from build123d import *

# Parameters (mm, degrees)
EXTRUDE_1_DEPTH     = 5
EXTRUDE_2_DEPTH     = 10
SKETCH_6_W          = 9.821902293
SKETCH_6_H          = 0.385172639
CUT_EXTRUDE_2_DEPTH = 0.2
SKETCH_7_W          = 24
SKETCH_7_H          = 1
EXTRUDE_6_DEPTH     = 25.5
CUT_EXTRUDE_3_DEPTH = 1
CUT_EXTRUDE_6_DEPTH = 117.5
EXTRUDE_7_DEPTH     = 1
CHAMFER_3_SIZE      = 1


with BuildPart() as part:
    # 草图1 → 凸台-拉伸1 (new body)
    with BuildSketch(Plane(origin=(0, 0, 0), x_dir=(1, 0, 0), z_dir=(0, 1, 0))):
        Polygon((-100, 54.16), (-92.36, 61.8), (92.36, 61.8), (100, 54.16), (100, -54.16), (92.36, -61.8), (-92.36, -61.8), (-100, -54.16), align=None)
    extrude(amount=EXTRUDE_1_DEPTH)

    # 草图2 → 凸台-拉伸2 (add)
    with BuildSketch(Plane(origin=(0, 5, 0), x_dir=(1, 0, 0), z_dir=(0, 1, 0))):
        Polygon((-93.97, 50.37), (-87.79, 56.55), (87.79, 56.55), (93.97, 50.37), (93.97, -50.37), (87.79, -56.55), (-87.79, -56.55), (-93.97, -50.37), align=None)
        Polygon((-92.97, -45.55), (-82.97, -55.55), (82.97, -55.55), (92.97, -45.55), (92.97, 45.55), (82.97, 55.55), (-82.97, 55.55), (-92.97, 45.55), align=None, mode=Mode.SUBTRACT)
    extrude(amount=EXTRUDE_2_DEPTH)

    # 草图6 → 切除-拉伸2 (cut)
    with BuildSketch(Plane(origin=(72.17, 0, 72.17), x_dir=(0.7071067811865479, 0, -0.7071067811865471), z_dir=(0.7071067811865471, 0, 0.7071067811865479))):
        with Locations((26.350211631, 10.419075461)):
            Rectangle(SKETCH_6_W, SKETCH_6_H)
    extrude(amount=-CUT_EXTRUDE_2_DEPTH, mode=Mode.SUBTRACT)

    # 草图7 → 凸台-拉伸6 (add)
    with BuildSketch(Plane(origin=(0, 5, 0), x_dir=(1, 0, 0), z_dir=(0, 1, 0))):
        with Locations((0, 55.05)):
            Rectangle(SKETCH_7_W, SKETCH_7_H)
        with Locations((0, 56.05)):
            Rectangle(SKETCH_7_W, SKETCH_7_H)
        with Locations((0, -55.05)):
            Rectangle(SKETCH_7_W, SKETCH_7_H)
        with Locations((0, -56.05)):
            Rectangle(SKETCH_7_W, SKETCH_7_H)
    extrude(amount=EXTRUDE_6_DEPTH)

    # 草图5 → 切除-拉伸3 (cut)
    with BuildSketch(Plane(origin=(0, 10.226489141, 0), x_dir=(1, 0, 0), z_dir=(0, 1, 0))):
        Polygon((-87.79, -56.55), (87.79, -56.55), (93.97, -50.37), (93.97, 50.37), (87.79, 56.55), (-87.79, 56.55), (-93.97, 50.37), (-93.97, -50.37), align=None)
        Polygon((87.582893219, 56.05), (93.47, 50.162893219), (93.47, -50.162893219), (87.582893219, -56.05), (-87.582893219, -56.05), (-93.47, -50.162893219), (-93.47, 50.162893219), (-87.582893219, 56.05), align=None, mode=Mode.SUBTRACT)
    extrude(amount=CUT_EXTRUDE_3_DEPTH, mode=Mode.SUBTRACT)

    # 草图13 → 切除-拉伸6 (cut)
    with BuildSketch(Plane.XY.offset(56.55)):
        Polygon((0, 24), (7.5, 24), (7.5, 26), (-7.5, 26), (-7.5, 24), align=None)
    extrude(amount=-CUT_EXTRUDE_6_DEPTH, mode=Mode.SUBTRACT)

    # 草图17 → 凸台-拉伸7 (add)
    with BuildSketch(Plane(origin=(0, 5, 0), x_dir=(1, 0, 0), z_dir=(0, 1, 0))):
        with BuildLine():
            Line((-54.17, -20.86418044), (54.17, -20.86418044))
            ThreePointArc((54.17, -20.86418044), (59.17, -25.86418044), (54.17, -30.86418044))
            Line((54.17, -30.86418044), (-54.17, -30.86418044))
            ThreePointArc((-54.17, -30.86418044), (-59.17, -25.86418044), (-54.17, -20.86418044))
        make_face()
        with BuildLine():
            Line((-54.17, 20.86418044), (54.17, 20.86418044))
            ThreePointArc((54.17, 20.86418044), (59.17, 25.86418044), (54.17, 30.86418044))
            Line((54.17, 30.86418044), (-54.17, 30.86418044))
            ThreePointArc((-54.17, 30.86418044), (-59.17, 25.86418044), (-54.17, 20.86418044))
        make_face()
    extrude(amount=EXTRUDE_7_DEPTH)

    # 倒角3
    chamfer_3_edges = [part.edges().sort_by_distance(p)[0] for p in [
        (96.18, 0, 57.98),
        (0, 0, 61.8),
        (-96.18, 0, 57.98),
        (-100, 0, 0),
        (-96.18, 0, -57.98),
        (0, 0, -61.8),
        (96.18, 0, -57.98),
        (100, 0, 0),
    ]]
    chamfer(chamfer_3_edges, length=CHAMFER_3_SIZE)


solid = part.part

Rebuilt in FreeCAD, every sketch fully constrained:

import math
import FreeCAD as App
import Part
import Sketcher


def edges_at(feature, points):
    """Names of the edges that pass closest to the given points."""
    edges = feature.Shape.Edges
    near = lambda p: min(range(len(edges)), key=lambda i: edges[i].distToShape(Part.Vertex(*p))[0])
    return sorted({f"Edge{near(p) + 1}" for p in points})


def add_polygon(sketch, points):
    """Adds a closed chain of lines whose ends are joined by coincident constraints."""
    first, n = sketch.GeometryCount, len(points)
    for a, b in zip(points, points[1:] + points[:1]):
        sketch.addGeometry(Part.LineSegment(App.Vector(*a, 0), App.Vector(*b, 0)), False)
    for i in range(n):
        sketch.addConstraint(Sketcher.Constraint("Coincident", first + i, 2, first + (i + 1) % n, 1))

doc = App.newDocument("Part")
body = doc.addObject("PartDesign::Body", "Body")

# Sketch on XZ plane
sketch1 = body.newObject("Sketcher::SketchObject", "Sketch")
sketch1.AttachmentSupport = (doc.getObject("XZ_Plane"), [""])
sketch1.MapMode = "FlatFace"
add_polygon(sketch1, [(-92.36, -61.8), (-100, -54.16), (-100, 54.16), (-92.36, 61.8), (92.36, 61.8), (100, 54.16), (100, -54.16), (92.36, -61.8)])  # lines 0-7
sketch1.addConstraint([
    Sketcher.Constraint("Vertical", 1),
    Sketcher.Constraint("Horizontal", 3),
    Sketcher.Constraint("Vertical", 5),
    Sketcher.Constraint("Horizontal", 7),
    Sketcher.Constraint("Symmetric", 0, 2, 4, 2, -1, 1),
    Sketcher.Constraint("Symmetric", 2, 2, 6, 2, -1, 1),
    Sketcher.Constraint("Perpendicular", 0, 2),
    Sketcher.Constraint("Perpendicular", 2, 4),
    Sketcher.Constraint("Perpendicular", 4, 6),
    Sketcher.Constraint("Horizontal", 1, 2, 4, 2),
    Sketcher.Constraint("Vertical", 3, 2, 6, 2),
    Sketcher.Constraint("DistanceX", 0, 2, -1, 1, 100.0),
    Sketcher.Constraint("DistanceX", 3, 1, 3, 2, 184.72),
    Sketcher.Constraint("DistanceY", 1, 1, 1, 2, 108.32),
])
pad1 = body.newObject("PartDesign::Pad", "Pad")
pad1.Profile = sketch1
pad1.Length = 5
pad1.Reversed = True

# Sketch on XZ plane
sketch2 = body.newObject("Sketcher::SketchObject", "Sketch001")
sketch2.AttachmentSupport = (doc.getObject("XZ_Plane"), [""])
sketch2.MapMode = "FlatFace"
sketch2.AttachmentOffset = App.Placement(App.Vector(0, 0, -5), App.Rotation())
add_polygon(sketch2, [(-87.79, -56.55), (-93.97, -50.37), (-93.97, 50.37), (-87.79, 56.55), (87.79, 56.55), (93.97, 50.37), (93.97, -50.37), (87.79, -56.55)])  # lines 0-7
add_polygon(sketch2, [(-92.97, 45.55), (-92.97, -45.55), (-82.97, -55.55), (82.97, -55.55), (92.97, -45.55), (92.97, 45.55), (82.97, 55.55), (-82.97, 55.55)])  # lines 8-15
sketch2.addConstraint([
    Sketcher.Constraint("Vertical", 1),
    Sketcher.Constraint("Horizontal", 3),
    Sketcher.Constraint("Vertical", 5),
    Sketcher.Constraint("Horizontal", 7),
    Sketcher.Constraint("Vertical", 8),
    Sketcher.Constraint("Horizontal", 10),
    Sketcher.Constraint("Vertical", 12),
    Sketcher.Constraint("Horizontal", 14),
    Sketcher.Constraint("Symmetric", 0, 2, 4, 2, -1, 1),
    Sketcher.Constraint("Symmetric", 2, 2, 6, 2, -1, 1),
    Sketcher.Constraint("Symmetric", 8, 2, 12, 2, -1, 1),
    Sketcher.Constraint("Symmetric", 9, 2, 13, 2, -1, 1),
    Sketcher.Constraint("Perpendicular", 0, 2),
    Sketcher.Constraint("Perpendicular", 2, 4),
    Sketcher.Constraint("Perpendicular", 4, 6),
    Sketcher.Constraint("Perpendicular", 6, 9),
    Sketcher.Constraint("Perpendicular", 9, 11),
    Sketcher.Constraint("Perpendicular", 13, 15),
    Sketcher.Constraint("Horizontal", 1, 2, 4, 2),
    Sketcher.Constraint("Horizontal", 8, 2, 11, 2),
    Sketcher.Constraint("Horizontal", 12, 2, 15, 2),
    Sketcher.Constraint("Vertical", 3, 2, 6, 2),
    Sketcher.Constraint("DistanceY", 8, 2, 8, 1, 91.1),
    Sketcher.Constraint("DistanceX", 0, 2, 8, 2, 1.0),
    Sketcher.Constraint("DistanceY", 7, 2, 8, 2, 11.0),
    Sketcher.Constraint("DistanceY", 7, 2, 9, 2, 1.0),
    Sketcher.Constraint("DistanceX", 3, 1, 3, 2, 175.58),
    Sketcher.Constraint("DistanceX", 10, 1, 10, 2, 165.94),
])
pad2 = body.newObject("PartDesign::Pad", "Pad001")
pad2.Profile = sketch2
pad2.Length = 10
pad2.Reversed = True

# Sketch on an angled plane
sketch3 = body.newObject("Sketcher::SketchObject", "Sketch002")
sketch3.Placement = App.Placement(App.Vector(72.17, 0, 72.17), App.Rotation(App.Vector(0.707106781, 0, -0.707106781), App.Vector(0, 0.999999999, 0), App.Vector(0.707106781, 0, 0.707106781), "ZXY"))
add_polygon(sketch3, [(21.43926, 10.611662), (21.43926, 10.226489), (31.261163, 10.226489), (31.261163, 10.611662)])  # lines 0-3
sketch3.addConstraint([
    Sketcher.Constraint("Vertical", 0),
    Sketcher.Constraint("Horizontal", 1),
    Sketcher.Constraint("Vertical", 2),
    Sketcher.Constraint("Horizontal", 3),
    Sketcher.Constraint("DistanceX", 1, 1, 1, 2, 9.821902),
    Sketcher.Constraint("DistanceY", 0, 2, 0, 1, 0.385173),
    Sketcher.Constraint("DistanceX", -1, 1, 0, 2, 21.43926),
    Sketcher.Constraint("DistanceY", -1, 1, 0, 2, 10.226489),
])
pocket1 = body.newObject("PartDesign::Pocket", "Pocket")
pocket1.Profile = sketch3
pocket1.Length = 0.2

# Sketch on XZ plane
sketch4 = body.newObject("Sketcher::SketchObject", "Sketch003")
sketch4.AttachmentSupport = (doc.getObject("XZ_Plane"), [""])
sketch4.MapMode = "FlatFace"
sketch4.AttachmentOffset = App.Placement(App.Vector(0, 0, -5), App.Rotation())
add_polygon(sketch4, [(-12, -54.55), (12, -54.55), (12, -56.55), (-12, -56.55)])  # lines 0-3
add_polygon(sketch4, [(-12, 54.55), (-12, 56.55), (12, 56.55), (12, 54.55)])  # lines 4-7
sketch4.addConstraint([
    Sketcher.Constraint("Horizontal", 0),
    Sketcher.Constraint("Vertical", 1),
    Sketcher.Constraint("Horizontal", 2),
    Sketcher.Constraint("Vertical", 3),
    Sketcher.Constraint("Vertical", 4),
    Sketcher.Constraint("Horizontal", 5),
    Sketcher.Constraint("Vertical", 6),
    Sketcher.Constraint("Horizontal", 7),
    Sketcher.Constraint("Symmetric", 1, 2, 4, 2, -1, 1),
    Sketcher.Constraint("Symmetric", 3, 2, 6, 2, -1, 1),
    Sketcher.Constraint("Vertical", 3, 2, 4, 2),
    Sketcher.Constraint("DistanceX", 0, 1, 0, 2, 24.0),
    Sketcher.Constraint("DistanceY", 1, 2, 1, 1, 2.0),
    Sketcher.Constraint("DistanceY", 3, 2, 4, 2, 111.1),
])
pad3 = body.newObject("PartDesign::Pad", "Pad002")
pad3.Profile = sketch4
pad3.Length = 25.5
pad3.Reversed = True

# Sketch on XZ plane
sketch5 = body.newObject("Sketcher::SketchObject", "Sketch004")
sketch5.AttachmentSupport = (doc.getObject("XZ_Plane"), [""])
sketch5.MapMode = "FlatFace"
sketch5.AttachmentOffset = App.Placement(App.Vector(0, 0, -10.226489), App.Rotation())
add_polygon(sketch5, [(-87.79, 56.55), (87.79, 56.55), (93.97, 50.37), (93.97, -50.37), (87.79, -56.55), (-87.79, -56.55), (-93.97, -50.37), (-93.97, 50.37)])  # lines 0-7
add_polygon(sketch5, [(-87.582893, -56.05), (87.582893, -56.05), (93.47, -50.162893), (93.47, 50.162893), (87.582893, 56.05), (-87.582893, 56.05), (-93.47, 50.162893), (-93.47, -50.162893)])  # lines 8-15
sketch5.addConstraint([
    Sketcher.Constraint("Horizontal", 0),
    Sketcher.Constraint("Vertical", 2),
    Sketcher.Constraint("Horizontal", 4),
    Sketcher.Constraint("Vertical", 6),
    Sketcher.Constraint("Horizontal", 8),
    Sketcher.Constraint("Vertical", 10),
    Sketcher.Constraint("Horizontal", 12),
    Sketcher.Constraint("Vertical", 14),
    Sketcher.Constraint("Symmetric", 0, 2, 4, 2, -1, 1),
    Sketcher.Constraint("Symmetric", 1, 2, 5, 2, -1, 1),
    Sketcher.Constraint("Symmetric", 8, 2, 12, 2, -1, 1),
    Sketcher.Constraint("Symmetric", 9, 2, 13, 2, -1, 1),
    Sketcher.Constraint("Perpendicular", 1, 3),
    Sketcher.Constraint("Perpendicular", 5, 7),
    Sketcher.Constraint("Parallel", 7, 9),
    Sketcher.Constraint("Perpendicular", 9, 11),
    Sketcher.Constraint("Perpendicular", 13, 15),
    Sketcher.Constraint("Horizontal", 2, 2, 5, 2),
    Sketcher.Constraint("Horizontal", 1, 2, 6, 2),
    Sketcher.Constraint("Horizontal", 10, 2, 13, 2),
    Sketcher.Constraint("Horizontal", 9, 2, 14, 2),
    Sketcher.Constraint("Vertical", 0, 2, 3, 2),
    Sketcher.Constraint("DistanceX", 0, 1, 0, 2, 175.58),
    Sketcher.Constraint("DistanceY", 2, 2, 2, 1, 100.74),
    Sketcher.Constraint("DistanceY", 3, 2, 0, 2, 113.1),
    Sketcher.Constraint("DistanceY", 3, 2, 8, 2, 0.5),
    Sketcher.Constraint("DistanceX", 9, 2, 2, 2, 0.5),
    Sketcher.Constraint("DistanceX", 8, 1, 8, 2, 175.165786),
])
pocket2 = body.newObject("PartDesign::Pocket", "Pocket001")
pocket2.Profile = sketch5
pocket2.Length = 1

# Sketch on XY plane
sketch6 = body.newObject("Sketcher::SketchObject", "Sketch005")
sketch6.AttachmentSupport = (doc.getObject("XY_Plane"), [""])
sketch6.MapMode = "FlatFace"
sketch6.AttachmentOffset = App.Placement(App.Vector(0, 0, 56.55), App.Rotation())
add_polygon(sketch6, [(7.5, 24), (7.5, 26), (-7.5, 26), (-7.5, 24)])  # lines 0-3
sketch6.addConstraint([
    Sketcher.Constraint("Vertical", 0),
    Sketcher.Constraint("Horizontal", 1),
    Sketcher.Constraint("Vertical", 2),
    Sketcher.Constraint("Horizontal", 3),
    Sketcher.Constraint("DistanceX", 1, 2, 1, 1, 15.0),
    Sketcher.Constraint("DistanceY", 0, 1, 0, 2, 2.0),
    Sketcher.Constraint("DistanceY", -1, 1, 0, 2, 26.0),
    Sketcher.Constraint("DistanceX", -1, 1, 0, 2, 7.5),
])
pocket3 = body.newObject("PartDesign::Pocket", "Pocket002")
pocket3.Profile = sketch6
pocket3.Length = 117.5

# Sketch on XZ plane
sketch7 = body.newObject("Sketcher::SketchObject", "Sketch006")
sketch7.AttachmentSupport = (doc.getObject("XZ_Plane"), [""])
sketch7.MapMode = "FlatFace"
sketch7.AttachmentOffset = App.Placement(App.Vector(0, 0, -5), App.Rotation())
sketch7.addGeometry([
    Part.LineSegment(App.Vector(54.17, 20.86418, 0), App.Vector(-54.17, 20.86418, 0)),  # 0
    Part.ArcOfCircle(Part.Circle(App.Vector(-54.17, 25.86418, 0), App.Vector(0, 0, 1), 5), math.radians(90), math.radians(270)),  # 1
    Part.LineSegment(App.Vector(-54.17, 30.86418, 0), App.Vector(54.17, 30.86418, 0)),  # 2
    Part.ArcOfCircle(Part.Circle(App.Vector(54.17, 25.86418, 0), App.Vector(0, 0, 1), 5), math.radians(-90), math.radians(90)),  # 3
    Part.LineSegment(App.Vector(-54.17, -20.86418, 0), App.Vector(54.17, -20.86418, 0)),  # 4
    Part.ArcOfCircle(Part.Circle(App.Vector(54.17, -25.86418, 0), App.Vector(0, 0, 1), 5), math.radians(-90), math.radians(90)),  # 5
    Part.LineSegment(App.Vector(54.17, -30.86418, 0), App.Vector(-54.17, -30.86418, 0)),  # 6
    Part.ArcOfCircle(Part.Circle(App.Vector(-54.17, -25.86418, 0), App.Vector(0, 0, 1), 5), math.radians(90), math.radians(270)),  # 7
], False)
sketch7.addConstraint([
    Sketcher.Constraint("Tangent", 0, 2, 1, 2),
    Sketcher.Constraint("Tangent", 1, 1, 2, 1),
    Sketcher.Constraint("Tangent", 2, 2, 3, 2),
    Sketcher.Constraint("Tangent", 3, 1, 0, 1),
    Sketcher.Constraint("Tangent", 4, 2, 5, 2),
    Sketcher.Constraint("Tangent", 5, 1, 6, 1),
    Sketcher.Constraint("Tangent", 6, 2, 7, 2),
    Sketcher.Constraint("Tangent", 7, 1, 4, 1),
    Sketcher.Constraint("Horizontal", 0),
    Sketcher.Constraint("Horizontal", 2),
    Sketcher.Constraint("Horizontal", 4),
    Sketcher.Constraint("Horizontal", 6),
    Sketcher.Constraint("Equal", 3, 5),
    Sketcher.Constraint("Symmetric", 1, 3, 5, 3, -1, 1),
    Sketcher.Constraint("Vertical", 3, 3, 5, 3),
    Sketcher.Constraint("Vertical", 1, 3, 7, 3),
    Sketcher.Constraint("Radius", 1, 5.0),
    Sketcher.Constraint("DistanceX", 0, 2, 0, 1, 108.34),
    Sketcher.Constraint("DistanceY", -1, 1, 1, 3, 25.86418),
])
pad4 = body.newObject("PartDesign::Pad", "Pad003")
pad4.Profile = sketch7
pad4.Length = 1
pad4.Reversed = True
doc.recompute()

chamfer = body.newObject("PartDesign::Chamfer", "Chamfer")
chamfer.Base = (pad4, edges_at(pad4, [
    (96.18, 0, 57.98),
    (0, 0, 61.8),
    (-96.18, 0, 57.98),
    (-100, 0, 0),
    (-96.18, 0, -57.98),
    (0, 0, -61.8),
    (96.18, 0, -57.98),
    (100, 0, 0),
]))
chamfer.Size = 1

doc.recompute()
